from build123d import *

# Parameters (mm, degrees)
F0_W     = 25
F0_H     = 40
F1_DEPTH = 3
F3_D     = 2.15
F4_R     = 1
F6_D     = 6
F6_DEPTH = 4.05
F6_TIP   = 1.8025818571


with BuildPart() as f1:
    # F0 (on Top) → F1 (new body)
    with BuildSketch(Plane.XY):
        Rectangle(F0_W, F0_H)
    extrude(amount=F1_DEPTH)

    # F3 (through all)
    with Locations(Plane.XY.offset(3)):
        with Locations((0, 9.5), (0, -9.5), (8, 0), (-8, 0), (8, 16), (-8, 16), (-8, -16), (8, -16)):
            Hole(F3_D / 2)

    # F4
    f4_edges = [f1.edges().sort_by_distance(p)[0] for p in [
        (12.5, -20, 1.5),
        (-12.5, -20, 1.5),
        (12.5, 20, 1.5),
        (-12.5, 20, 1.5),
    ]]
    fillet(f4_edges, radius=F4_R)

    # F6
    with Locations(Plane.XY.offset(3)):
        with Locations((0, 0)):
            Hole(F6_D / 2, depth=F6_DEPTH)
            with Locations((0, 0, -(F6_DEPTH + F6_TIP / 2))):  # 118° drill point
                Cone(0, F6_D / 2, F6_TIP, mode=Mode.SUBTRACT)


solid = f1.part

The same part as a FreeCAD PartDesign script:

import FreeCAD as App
import Part
import Sketcher

V = App.Vector
Q = App.Units.Quantity


def edges_at(feature, points):
    """Names of the edges that pass closest to the given points."""
    edges = feature.Shape.Edges
    near = lambda p: min(range(len(edges)), key=lambda i: edges[i].distToShape(Part.Vertex(*p))[0])
    return sorted({f"Edge{near(p) + 1}" for p in points})


def add_polygon(sketch, points):
    """Adds a closed chain of lines whose ends are joined by coincident constraints."""
    first, n = sketch.GeometryCount, len(points)
    for a, b in zip(points, points[1:] + points[:1]):
        sketch.addGeometry(Part.LineSegment(App.Vector(*a, 0), App.Vector(*b, 0)), False)
    for i in range(n):
        sketch.addConstraint(Sketcher.Constraint("Coincident", first + i, 2, first + (i + 1) % n, 1))

doc = App.newDocument("Part")
body = doc.addObject("PartDesign::Body", "Body")

# Sketch on XY plane
sketch1 = body.newObject("Sketcher::SketchObject", "Sketch")
sketch1.AttachmentSupport = (doc.getObject("XY_Plane"), [""])
sketch1.MapMode = "FlatFace"
add_polygon(sketch1, [(-12.5, 20), (-12.5, -20), (12.5, -20), (12.5, 20)])  # lines 0-3
sketch1.addConstraint(Sketcher.Constraint("Vertical", 0))
sketch1.addConstraint(Sketcher.Constraint("Horizontal", 1))
sketch1.addConstraint(Sketcher.Constraint("Vertical", 2))
sketch1.addConstraint(Sketcher.Constraint("Horizontal", 3))
sketch1.addConstraint(Sketcher.Constraint("Symmetric", 0, 2, 2, 2, -1, 1))
sketch1.addConstraint(Sketcher.Constraint("DistanceX", 1, 1, 1, 2, Q("25 mm")))
sketch1.addConstraint(Sketcher.Constraint("DistanceY", 0, 2, 0, 1, Q("40 mm")))
pad1 = body.newObject("PartDesign::Pad", "Pad")
pad1.Profile = sketch1
pad1.Length = 3

# Sketch on XY plane
sketch2 = body.newObject("Sketcher::SketchObject", "Sketch001")
sketch2.AttachmentSupport = (doc.getObject("XY_Plane"), [""])
sketch2.MapMode = "FlatFace"
sketch2.AttachmentOffset = App.Placement(V(0, 0, 3), App.Rotation())
sketch2.addGeometry(Part.Circle(V(0, 9.5, 0), V(0, 0, 1), 1.075), False)
sketch2.addGeometry(Part.Circle(V(0, -9.5, 0), V(0, 0, 1), 1.075), False)
sketch2.addGeometry(Part.Circle(V(8, 0, 0), V(0, 0, 1), 1.075), False)
sketch2.addGeometry(Part.Circle(V(-8, 0, 0), V(0, 0, 1), 1.075), False)
sketch2.addGeometry(Part.Circle(V(8, 16, 0), V(0, 0, 1), 1.075), False)
sketch2.addGeometry(Part.Circle(V(-8, 16, 0), V(0, 0, 1), 1.075), False)
sketch2.addGeometry(Part.Circle(V(-8, -16, 0), V(0, 0, 1), 1.075), False)
sketch2.addGeometry(Part.Circle(V(8, -16, 0), V(0, 0, 1), 1.075), False)
sketch2.addConstraint(Sketcher.Constraint("Equal", 0, 1))
sketch2.addConstraint(Sketcher.Constraint("Equal", 1, 2))
sketch2.addConstraint(Sketcher.Constraint("Equal", 2, 3))
sketch2.addConstraint(Sketcher.Constraint("Equal", 3, 4))
sketch2.addConstraint(Sketcher.Constraint("Equal", 4, 5))
sketch2.addConstraint(Sketcher.Constraint("Equal", 5, 6))
sketch2.addConstraint(Sketcher.Constraint("Equal", 6, 7))
sketch2.addConstraint(Sketcher.Constraint("Symmetric", 0, 3, 1, 3, -1, 1))
sketch2.addConstraint(Sketcher.Constraint("Symmetric", 2, 3, 3, 3, -1, 1))
sketch2.addConstraint(Sketcher.Constraint("Symmetric", 4, 3, 6, 3, -1, 1))
sketch2.addConstraint(Sketcher.Constraint("Symmetric", 5, 3, 7, 3, -1, 1))
sketch2.addConstraint(Sketcher.Constraint("Symmetric", 4, 3, 5, 3, -2))
sketch2.addConstraint(Sketcher.Constraint("PointOnObject", 0, 3, -2))
sketch2.addConstraint(Sketcher.Constraint("PointOnObject", 2, 3, -1))
sketch2.addConstraint(Sketcher.Constraint("Vertical", 2, 3, 4, 3))
sketch2.addConstraint(Sketcher.Constraint("Diameter", 0, Q("2.15 mm")))
sketch2.addConstraint(Sketcher.Constraint("DistanceX", -1, 1, 2, 3, Q("8 mm")))
sketch2.addConstraint(Sketcher.Constraint("DistanceY", -1, 1, 4, 3, Q("16 mm")))
sketch2.addConstraint(Sketcher.Constraint("DistanceY", 1, 3, 0, 3, Q("19 mm")))
doc.recompute()
hole = body.newObject("PartDesign::Hole", "Hole")
hole.Profile = sketch2
hole.ThreadType = "None"
hole.Diameter = 2.15
hole.DepthType = "ThroughAll"
doc.recompute()

fillet = body.newObject("PartDesign::Fillet", "Fillet")
fillet.Base = (hole, edges_at(hole, [
    (12.5, -20, 1.5),
    (-12.5, -20, 1.5),
    (12.5, 20, 1.5),
    (-12.5, 20, 1.5),
]))
fillet.Radius = 1

# Sketch on XY plane
sketch3 = body.newObject("Sketcher::SketchObject", "Sketch002")
sketch3.AttachmentSupport = (doc.getObject("XY_Plane"), [""])
sketch3.MapMode = "FlatFace"
sketch3.AttachmentOffset = App.Placement(V(0, 0, 3), App.Rotation())
sketch3.addGeometry(Part.Circle(V(0, 0, 0), V(0, 0, 1), 3), False)
sketch3.addConstraint(Sketcher.Constraint("Coincident", 0, 3, -1, 1))
sketch3.addConstraint(Sketcher.Constraint("Diameter", 0, Q("6 mm")))
doc.recompute()
hole2 = body.newObject("PartDesign::Hole", "Hole001")
hole2.Profile = sketch3
hole2.ThreadType = "None"
hole2.Diameter = 6
hole2.DepthType = "Dimension"
hole2.Depth = 4.05
hole2.DrillPoint = "Angled"
hole2.DrillPointAngle = 118

doc.recompute()
